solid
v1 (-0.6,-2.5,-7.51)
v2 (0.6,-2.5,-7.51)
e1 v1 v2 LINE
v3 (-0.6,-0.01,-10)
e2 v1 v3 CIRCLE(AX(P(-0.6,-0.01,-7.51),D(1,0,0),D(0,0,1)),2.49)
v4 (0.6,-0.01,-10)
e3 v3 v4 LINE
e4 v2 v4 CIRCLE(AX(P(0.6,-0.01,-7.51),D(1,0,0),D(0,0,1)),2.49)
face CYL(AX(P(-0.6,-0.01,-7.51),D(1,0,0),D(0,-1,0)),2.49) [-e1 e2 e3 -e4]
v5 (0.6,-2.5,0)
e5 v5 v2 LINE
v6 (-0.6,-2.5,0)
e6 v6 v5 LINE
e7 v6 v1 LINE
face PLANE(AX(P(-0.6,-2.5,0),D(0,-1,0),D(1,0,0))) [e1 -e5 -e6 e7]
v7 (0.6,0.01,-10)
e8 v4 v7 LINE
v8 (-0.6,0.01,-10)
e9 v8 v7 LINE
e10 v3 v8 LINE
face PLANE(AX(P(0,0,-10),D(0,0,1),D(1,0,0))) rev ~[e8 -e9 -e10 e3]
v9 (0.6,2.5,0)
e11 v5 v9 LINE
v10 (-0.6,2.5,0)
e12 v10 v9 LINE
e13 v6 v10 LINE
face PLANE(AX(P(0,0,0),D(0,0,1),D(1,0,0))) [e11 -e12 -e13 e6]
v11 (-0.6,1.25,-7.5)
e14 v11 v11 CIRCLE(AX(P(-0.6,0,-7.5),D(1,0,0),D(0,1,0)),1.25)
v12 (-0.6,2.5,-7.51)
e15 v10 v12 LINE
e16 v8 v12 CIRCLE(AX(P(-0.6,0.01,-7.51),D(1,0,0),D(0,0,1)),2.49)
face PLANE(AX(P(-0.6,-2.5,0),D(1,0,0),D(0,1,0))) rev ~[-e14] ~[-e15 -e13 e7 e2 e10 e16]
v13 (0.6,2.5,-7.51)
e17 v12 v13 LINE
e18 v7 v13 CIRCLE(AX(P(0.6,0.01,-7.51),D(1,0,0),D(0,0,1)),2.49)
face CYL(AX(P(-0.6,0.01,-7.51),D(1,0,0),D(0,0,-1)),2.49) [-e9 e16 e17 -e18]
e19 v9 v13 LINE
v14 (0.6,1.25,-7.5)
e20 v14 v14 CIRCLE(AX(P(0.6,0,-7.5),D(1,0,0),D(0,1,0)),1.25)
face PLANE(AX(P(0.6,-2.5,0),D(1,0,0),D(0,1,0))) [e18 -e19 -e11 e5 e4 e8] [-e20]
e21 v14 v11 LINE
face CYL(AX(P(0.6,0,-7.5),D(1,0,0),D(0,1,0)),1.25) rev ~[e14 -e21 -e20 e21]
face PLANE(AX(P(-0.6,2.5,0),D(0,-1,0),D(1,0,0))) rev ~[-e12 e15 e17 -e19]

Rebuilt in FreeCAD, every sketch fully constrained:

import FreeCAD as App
import Part
import Sketcher


def edges_at(feature, points):
    """Names of the edges that pass closest to the given points."""
    edges = feature.Shape.Edges
    near = lambda p: min(range(len(edges)), key=lambda i: edges[i].distToShape(Part.Vertex(*p))[0])
    return sorted({f"Edge{near(p) + 1}" for p in points})

doc = App.newDocument("Part")
body = doc.addObject("PartDesign::Body", "Body")

# Sketch on XY plane
sketch1 = body.newObject("Sketcher::SketchObject", "Sketch")
sketch1.AttachmentSupport = (doc.getObject("XY_Plane"), [""])
sketch1.MapMode = "FlatFace"
sketch1.addGeometry(Part.LineSegment(App.Vector(-0.6, 2.5, 0), App.Vector(-0.6, -2.5, 0)), False)
sketch1.addGeometry(Part.LineSegment(App.Vector(-0.6, -2.5, 0), App.Vector(0.6, -2.5, 0)), False)
sketch1.addGeometry(Part.LineSegment(App.Vector(0.6, -2.5, 0), App.Vector(0.6, 2.5, 0)), False)
sketch1.addGeometry(Part.LineSegment(App.Vector(0.6, 2.5, 0), App.Vector(-0.6, 2.5, 0)), False)
sketch1.addConstraint(Sketcher.Constraint("Coincident", 0, 2, 1, 1))
sketch1.addConstraint(Sketcher.Constraint("Coincident", 1, 2, 2, 1))
sketch1.addConstraint(Sketcher.Constraint("Coincident", 2, 2, 3, 1))
sketch1.addConstraint(Sketcher.Constraint("Coincident", 3, 2, 0, 1))
sketch1.addConstraint(Sketcher.Constraint("Vertical", 0))
sketch1.addConstraint(Sketcher.Constraint("Horizontal", 1))
sketch1.addConstraint(Sketcher.Constraint("Vertical", 2))
sketch1.addConstraint(Sketcher.Constraint("Horizontal", 3))
sketch1.addConstraint(Sketcher.Constraint("Symmetric", 0, 2, 2, 2, -1, 1))
sketch1.addConstraint(Sketcher.Constraint("DistanceY", 0, 2, 0, 1, 5.0))
sketch1.addConstraint(Sketcher.Constraint("DistanceX", 1, 1, 1, 2, 1.2))
pad1 = body.newObject("PartDesign::Pad", "Pad")
pad1.Profile = sketch1
pad1.Length = 10
pad1.Reversed = True

# Sketch on YZ plane
sketch2 = body.newObject("Sketcher::SketchObject", "Sketch001")
sketch2.AttachmentSupport = (doc.getObject("YZ_Plane"), [""])
sketch2.MapMode = "FlatFace"
sketch2.AttachmentOffset = App.Placement(App.Vector(0, 0, 0.6), App.Rotation())
sketch2.addGeometry(Part.Circle(App.Vector(0, -7.5, 0), App.Vector(0, 0, 1), 1.25), False)
sketch2.addConstraint(Sketcher.Constraint("PointOnObject", 0, 3, -2))
sketch2.addConstraint(Sketcher.Constraint("Diameter", 0, 2.5))
sketch2.addConstraint(Sketcher.Constraint("DistanceY", 0, 3, -1, 1, 7.5))
pocket1 = body.newObject("PartDesign::Pocket", "Pocket")
pocket1.Profile = sketch2
pocket1.Length = 1.2
doc.recompute()

fillet = body.newObject("PartDesign::Fillet", "Fillet")
fillet.Base = (pocket1, edges_at(pocket1, [(0, -2.5, -10), (0, 2.5, -10)]))
fillet.Radius = 2.49

doc.recompute()
